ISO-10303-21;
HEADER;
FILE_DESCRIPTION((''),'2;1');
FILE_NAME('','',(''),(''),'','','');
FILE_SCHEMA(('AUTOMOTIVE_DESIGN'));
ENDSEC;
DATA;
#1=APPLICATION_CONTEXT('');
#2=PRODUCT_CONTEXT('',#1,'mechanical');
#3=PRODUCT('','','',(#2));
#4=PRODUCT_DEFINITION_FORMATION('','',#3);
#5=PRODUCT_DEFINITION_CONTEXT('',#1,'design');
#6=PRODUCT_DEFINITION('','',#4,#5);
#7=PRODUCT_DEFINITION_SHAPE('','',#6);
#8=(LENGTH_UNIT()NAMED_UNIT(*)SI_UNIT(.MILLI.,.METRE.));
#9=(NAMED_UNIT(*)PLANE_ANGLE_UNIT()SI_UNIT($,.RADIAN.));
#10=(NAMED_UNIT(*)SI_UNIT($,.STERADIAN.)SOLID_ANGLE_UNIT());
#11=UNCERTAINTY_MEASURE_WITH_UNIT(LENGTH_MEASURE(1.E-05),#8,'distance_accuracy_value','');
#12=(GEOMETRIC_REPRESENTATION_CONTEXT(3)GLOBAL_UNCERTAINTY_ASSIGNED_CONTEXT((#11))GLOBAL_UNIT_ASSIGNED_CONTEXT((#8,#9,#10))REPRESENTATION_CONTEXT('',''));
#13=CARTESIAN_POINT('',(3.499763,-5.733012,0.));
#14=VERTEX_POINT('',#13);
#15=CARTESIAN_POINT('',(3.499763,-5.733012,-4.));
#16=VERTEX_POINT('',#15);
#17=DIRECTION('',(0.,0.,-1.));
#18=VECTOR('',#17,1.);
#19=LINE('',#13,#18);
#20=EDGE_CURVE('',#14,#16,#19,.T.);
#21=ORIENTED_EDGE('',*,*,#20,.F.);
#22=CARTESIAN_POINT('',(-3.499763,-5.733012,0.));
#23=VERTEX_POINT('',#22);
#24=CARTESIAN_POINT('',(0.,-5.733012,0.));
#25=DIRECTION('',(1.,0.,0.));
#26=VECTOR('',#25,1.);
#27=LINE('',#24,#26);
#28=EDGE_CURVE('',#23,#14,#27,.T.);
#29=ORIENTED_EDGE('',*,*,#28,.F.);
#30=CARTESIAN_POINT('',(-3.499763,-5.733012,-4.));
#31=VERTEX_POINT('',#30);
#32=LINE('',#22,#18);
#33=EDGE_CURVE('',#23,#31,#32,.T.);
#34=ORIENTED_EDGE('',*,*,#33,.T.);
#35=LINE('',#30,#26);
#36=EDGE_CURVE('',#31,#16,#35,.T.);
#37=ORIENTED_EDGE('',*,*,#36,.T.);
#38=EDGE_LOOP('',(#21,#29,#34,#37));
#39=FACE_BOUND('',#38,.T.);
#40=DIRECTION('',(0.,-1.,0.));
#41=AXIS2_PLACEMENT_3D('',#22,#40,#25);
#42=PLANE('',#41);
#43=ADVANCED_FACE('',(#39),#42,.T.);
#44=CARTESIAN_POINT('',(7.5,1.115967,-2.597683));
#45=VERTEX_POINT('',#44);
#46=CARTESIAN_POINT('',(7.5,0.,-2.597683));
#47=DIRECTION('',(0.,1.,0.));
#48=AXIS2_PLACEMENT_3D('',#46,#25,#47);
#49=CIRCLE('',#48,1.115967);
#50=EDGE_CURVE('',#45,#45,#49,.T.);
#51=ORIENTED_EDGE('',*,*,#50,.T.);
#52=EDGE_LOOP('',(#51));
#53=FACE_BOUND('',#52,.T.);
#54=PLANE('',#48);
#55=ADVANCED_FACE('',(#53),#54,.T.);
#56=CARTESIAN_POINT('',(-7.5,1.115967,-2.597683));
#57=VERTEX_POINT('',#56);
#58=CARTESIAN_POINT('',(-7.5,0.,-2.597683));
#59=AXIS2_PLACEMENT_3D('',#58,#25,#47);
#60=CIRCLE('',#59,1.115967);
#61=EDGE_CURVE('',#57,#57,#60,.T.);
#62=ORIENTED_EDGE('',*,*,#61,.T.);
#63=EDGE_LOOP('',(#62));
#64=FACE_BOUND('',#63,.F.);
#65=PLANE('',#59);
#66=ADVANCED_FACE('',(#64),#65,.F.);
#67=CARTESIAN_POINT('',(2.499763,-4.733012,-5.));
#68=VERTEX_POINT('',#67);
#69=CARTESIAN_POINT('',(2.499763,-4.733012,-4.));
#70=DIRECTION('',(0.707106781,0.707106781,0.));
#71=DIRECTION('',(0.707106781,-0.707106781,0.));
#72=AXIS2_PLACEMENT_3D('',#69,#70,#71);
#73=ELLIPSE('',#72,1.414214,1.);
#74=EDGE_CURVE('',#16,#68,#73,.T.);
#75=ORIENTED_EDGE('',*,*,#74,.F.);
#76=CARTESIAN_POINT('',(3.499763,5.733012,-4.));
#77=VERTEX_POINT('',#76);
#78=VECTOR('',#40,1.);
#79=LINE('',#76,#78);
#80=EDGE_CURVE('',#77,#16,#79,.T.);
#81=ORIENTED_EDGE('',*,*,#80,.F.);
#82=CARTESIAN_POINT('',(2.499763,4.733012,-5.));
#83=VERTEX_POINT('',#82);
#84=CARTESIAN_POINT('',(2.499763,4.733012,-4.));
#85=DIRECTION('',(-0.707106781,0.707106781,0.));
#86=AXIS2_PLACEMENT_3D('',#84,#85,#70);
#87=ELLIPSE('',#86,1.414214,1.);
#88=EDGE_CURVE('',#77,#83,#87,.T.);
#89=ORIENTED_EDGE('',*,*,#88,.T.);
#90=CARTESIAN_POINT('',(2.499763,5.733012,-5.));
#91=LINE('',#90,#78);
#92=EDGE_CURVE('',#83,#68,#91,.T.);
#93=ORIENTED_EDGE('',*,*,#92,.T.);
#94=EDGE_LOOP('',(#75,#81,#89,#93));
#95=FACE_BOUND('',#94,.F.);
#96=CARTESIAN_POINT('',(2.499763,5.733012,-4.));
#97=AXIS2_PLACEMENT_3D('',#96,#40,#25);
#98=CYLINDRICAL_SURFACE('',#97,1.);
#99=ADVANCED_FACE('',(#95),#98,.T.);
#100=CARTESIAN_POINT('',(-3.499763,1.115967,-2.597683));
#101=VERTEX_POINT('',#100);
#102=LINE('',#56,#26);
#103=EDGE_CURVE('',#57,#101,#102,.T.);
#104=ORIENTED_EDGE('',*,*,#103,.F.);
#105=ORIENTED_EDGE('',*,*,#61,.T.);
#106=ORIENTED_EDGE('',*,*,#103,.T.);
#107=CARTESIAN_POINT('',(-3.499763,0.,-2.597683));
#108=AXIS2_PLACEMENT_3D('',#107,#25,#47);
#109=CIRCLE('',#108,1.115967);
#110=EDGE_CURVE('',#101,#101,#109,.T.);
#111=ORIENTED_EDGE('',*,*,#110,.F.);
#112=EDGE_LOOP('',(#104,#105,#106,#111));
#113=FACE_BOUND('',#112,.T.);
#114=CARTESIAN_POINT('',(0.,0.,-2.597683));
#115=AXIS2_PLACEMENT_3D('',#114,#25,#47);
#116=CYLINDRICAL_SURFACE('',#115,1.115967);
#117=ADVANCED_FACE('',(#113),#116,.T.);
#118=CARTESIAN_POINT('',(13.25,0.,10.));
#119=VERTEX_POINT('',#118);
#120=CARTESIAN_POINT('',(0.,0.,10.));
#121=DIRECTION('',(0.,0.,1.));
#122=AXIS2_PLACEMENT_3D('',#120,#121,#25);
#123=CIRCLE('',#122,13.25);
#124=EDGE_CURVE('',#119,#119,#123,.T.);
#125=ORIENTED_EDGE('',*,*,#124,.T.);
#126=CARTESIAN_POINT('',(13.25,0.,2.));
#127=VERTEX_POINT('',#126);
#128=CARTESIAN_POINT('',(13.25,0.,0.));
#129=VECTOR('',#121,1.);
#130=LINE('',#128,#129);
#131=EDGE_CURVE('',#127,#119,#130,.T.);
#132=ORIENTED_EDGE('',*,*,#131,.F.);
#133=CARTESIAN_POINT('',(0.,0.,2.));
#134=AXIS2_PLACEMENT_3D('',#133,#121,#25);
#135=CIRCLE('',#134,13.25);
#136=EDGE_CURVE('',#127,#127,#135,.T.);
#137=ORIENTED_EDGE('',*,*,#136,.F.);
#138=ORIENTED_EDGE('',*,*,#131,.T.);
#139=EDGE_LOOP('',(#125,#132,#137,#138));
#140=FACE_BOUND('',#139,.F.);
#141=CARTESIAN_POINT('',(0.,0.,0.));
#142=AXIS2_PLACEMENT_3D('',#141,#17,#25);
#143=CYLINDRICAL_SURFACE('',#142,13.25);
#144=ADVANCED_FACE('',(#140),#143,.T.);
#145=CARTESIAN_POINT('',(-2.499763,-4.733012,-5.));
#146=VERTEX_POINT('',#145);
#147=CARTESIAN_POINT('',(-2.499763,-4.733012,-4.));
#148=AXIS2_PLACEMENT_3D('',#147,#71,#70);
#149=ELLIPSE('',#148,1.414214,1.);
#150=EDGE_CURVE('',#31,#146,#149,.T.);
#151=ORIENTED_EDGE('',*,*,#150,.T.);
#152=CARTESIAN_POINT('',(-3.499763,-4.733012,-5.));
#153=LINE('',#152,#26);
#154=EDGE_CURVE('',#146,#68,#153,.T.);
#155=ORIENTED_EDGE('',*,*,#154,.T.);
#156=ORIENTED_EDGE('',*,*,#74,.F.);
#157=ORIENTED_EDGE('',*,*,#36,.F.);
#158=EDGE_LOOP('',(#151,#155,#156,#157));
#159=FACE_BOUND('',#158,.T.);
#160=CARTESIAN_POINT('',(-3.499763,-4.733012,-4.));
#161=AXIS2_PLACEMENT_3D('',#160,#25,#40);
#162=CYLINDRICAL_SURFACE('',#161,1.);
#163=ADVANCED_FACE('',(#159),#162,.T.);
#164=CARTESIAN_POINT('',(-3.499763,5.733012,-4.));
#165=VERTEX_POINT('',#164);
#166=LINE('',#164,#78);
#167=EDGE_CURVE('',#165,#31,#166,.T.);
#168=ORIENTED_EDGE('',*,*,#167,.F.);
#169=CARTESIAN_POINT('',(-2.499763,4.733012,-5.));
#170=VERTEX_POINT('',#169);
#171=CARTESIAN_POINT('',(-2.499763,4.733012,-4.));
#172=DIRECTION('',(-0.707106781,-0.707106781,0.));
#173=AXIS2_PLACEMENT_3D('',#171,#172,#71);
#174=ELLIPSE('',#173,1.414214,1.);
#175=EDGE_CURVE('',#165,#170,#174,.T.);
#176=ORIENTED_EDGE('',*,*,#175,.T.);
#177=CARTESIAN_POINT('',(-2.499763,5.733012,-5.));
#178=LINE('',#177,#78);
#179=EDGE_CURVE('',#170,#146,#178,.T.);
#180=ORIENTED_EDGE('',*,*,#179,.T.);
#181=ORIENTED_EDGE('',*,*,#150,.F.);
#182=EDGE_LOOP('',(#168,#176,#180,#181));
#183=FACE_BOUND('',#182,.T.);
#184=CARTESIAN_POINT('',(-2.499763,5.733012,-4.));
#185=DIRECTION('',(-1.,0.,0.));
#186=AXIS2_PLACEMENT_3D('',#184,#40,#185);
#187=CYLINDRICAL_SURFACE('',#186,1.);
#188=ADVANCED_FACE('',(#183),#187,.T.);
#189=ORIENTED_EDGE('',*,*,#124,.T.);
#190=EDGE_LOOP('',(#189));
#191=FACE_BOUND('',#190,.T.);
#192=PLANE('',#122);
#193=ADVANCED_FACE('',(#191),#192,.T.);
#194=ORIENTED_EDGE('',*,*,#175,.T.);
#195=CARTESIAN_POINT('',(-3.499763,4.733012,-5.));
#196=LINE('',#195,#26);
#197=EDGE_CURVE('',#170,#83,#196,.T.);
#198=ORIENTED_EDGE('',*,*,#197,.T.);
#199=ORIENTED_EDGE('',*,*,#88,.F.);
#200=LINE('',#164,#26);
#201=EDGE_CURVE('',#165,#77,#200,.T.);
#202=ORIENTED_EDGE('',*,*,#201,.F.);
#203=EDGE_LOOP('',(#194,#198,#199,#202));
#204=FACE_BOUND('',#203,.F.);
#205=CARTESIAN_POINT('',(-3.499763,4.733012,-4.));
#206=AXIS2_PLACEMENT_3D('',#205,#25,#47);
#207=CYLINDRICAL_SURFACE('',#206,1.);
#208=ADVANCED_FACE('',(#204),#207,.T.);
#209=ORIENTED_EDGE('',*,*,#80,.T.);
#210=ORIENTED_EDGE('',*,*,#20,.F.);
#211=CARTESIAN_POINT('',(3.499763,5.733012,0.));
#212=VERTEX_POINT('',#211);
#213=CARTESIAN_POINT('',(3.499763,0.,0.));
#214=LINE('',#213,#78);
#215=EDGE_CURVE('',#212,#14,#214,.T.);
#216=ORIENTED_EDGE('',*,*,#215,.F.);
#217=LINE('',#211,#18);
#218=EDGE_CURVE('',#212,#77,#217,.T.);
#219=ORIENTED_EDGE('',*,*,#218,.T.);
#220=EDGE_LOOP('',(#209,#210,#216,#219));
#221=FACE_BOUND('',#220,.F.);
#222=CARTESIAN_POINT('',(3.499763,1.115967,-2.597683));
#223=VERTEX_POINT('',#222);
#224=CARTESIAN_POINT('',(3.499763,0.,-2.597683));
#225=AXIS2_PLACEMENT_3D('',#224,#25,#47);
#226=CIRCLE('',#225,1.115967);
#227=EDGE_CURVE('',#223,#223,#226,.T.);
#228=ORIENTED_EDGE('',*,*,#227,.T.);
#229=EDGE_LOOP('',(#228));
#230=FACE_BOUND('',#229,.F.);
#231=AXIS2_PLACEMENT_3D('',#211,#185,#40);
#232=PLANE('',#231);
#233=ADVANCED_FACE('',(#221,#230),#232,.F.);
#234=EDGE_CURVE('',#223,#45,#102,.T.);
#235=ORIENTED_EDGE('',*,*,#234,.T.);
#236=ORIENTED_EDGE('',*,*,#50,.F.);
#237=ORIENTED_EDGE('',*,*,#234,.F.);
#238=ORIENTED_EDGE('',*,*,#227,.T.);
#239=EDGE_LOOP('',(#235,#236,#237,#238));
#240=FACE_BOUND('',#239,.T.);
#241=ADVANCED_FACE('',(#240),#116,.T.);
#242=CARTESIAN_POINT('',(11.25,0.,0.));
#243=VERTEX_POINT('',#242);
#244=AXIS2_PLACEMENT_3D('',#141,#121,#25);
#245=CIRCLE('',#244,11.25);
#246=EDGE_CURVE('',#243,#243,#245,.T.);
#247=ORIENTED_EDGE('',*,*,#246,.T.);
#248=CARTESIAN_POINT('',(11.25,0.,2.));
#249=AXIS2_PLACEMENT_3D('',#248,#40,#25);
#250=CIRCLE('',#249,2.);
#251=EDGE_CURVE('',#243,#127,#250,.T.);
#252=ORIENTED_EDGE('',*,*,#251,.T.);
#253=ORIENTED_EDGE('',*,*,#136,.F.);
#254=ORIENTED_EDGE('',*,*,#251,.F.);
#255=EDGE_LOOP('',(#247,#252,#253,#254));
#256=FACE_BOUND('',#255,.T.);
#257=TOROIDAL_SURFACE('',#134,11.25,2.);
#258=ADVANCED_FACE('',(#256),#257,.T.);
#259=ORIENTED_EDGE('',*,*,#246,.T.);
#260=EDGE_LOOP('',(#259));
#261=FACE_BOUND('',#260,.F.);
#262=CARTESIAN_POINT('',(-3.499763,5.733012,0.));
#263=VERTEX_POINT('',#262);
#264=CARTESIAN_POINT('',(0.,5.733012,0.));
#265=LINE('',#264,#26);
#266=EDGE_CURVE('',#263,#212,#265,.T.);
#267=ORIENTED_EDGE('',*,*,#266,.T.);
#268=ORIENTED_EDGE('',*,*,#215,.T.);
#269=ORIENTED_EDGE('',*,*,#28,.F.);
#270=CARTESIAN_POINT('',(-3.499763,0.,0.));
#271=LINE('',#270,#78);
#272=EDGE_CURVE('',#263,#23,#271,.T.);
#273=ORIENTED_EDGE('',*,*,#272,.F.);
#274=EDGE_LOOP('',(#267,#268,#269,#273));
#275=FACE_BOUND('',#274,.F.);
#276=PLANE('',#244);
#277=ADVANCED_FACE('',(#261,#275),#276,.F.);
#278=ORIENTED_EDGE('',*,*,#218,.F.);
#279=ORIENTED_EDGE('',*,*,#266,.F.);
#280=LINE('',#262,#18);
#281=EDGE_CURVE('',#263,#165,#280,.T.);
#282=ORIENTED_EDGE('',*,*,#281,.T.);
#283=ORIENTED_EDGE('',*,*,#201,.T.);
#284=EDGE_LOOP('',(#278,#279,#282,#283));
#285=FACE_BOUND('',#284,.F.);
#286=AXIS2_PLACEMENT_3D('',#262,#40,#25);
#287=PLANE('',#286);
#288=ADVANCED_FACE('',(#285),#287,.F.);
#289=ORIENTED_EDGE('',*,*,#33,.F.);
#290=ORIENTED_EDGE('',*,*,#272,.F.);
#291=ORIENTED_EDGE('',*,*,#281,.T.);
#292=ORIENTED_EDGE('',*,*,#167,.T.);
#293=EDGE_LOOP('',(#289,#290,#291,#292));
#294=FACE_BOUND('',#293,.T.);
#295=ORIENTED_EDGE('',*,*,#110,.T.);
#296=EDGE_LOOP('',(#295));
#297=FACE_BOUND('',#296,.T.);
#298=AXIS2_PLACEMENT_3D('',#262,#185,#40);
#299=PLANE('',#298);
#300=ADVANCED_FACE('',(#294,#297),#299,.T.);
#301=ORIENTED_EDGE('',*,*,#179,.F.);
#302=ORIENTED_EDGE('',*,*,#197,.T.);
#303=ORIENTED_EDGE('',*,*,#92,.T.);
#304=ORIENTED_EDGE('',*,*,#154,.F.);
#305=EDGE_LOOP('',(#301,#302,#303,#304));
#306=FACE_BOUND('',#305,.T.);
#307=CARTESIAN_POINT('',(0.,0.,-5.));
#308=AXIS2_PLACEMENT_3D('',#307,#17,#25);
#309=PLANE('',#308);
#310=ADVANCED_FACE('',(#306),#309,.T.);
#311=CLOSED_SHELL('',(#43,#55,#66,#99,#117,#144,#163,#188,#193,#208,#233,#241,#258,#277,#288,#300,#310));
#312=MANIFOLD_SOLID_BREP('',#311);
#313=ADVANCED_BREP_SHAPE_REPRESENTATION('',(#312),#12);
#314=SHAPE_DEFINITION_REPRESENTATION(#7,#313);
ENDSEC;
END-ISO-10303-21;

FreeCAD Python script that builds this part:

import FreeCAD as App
import Part
import Sketcher
from FreeCAD import Vector
Q = App.Units.Quantity


def edges_at(feature, points):
    """Names of the edges that pass closest to the given points."""
    edges = feature.Shape.Edges
    near = lambda p: min(range(len(edges)), key=lambda i: edges[i].distToShape(Part.Vertex(*p))[0])
    return sorted({f"Edge{near(p) + 1}" for p in points})

doc = App.newDocument("Part")
body = doc.addObject("PartDesign::Body", "Body")

sketch1 = body.newObject("Sketcher::SketchObject", "Sketch")
sketch1.AttachmentSupport = (doc.getObject("XY_Plane"), [""])
sketch1.MapMode = "FlatFace"
sketch1.addGeometry(Part.Circle(Vector(0, 0, 0), Vector(0, 0, 1), 13), False)
sketch1.addConstraint([
    Sketcher.Constraint("Coincident", 0, 3, -1, 1),
    Sketcher.Constraint("Diameter", 0, Q("26.5 mm")),
])
pad1 = body.newObject("PartDesign::Pad", "Pad")
pad1.Profile = sketch1
pad1.Length = 10

sketch2 = body.newObject("Sketcher::SketchObject", "Sketch001")
sketch2.AttachmentSupport = (doc.getObject("XY_Plane"), [""])
sketch2.MapMode = "FlatFace"
sketch2.addGeometry([
    Part.LineSegment(Vector(-3, -6, 0), Vector(-3, 6, 0)),
    Part.LineSegment(Vector(-3, 6, 0), Vector(3, 6, 0)),
    Part.LineSegment(Vector(3, 6, 0), Vector(3, -6, 0)),
    Part.LineSegment(Vector(3, -6, 0), Vector(-3, -6, 0)),
], False)
sketch2.addConstraint([
    Sketcher.Constraint("Coincident", 0, 2, 1, 1),
    Sketcher.Constraint("Coincident", 1, 2, 2, 1),
    Sketcher.Constraint("Coincident", 2, 2, 3, 1),
    Sketcher.Constraint("Coincident", 3, 2, 0, 1),
    Sketcher.Constraint("Vertical", 0),
    Sketcher.Constraint("Horizontal", 1),
    Sketcher.Constraint("Vertical", 2),
    Sketcher.Constraint("Horizontal", 3),
    Sketcher.Constraint("Symmetric", 0, 2, 2, 2, -1, 1),
    Sketcher.Constraint("DistanceX", 1, 1, 1, 2, Q("6.999525 mm")),
    Sketcher.Constraint("DistanceY", 0, 1, 0, 2, Q("11.466024 mm")),
])
pad2 = body.newObject("PartDesign::Pad", "Pad001")
pad2.Profile = sketch2
pad2.Length = 5
pad2.Reversed = True

sketch3 = body.newObject("Sketcher::SketchObject", "Sketch002")
sketch3.AttachmentSupport = (doc.getObject("YZ_Plane"), [""])
sketch3.MapMode = "FlatFace"
sketch3.addGeometry(Part.Circle(Vector(0, -2.6, 0), Vector(0, 0, 1), 1.1), False)
sketch3.addConstraint([
    Sketcher.Constraint("PointOnObject", 0, 3, -2),
    Sketcher.Constraint("Diameter", 0, Q("2.231934 mm")),
    Sketcher.Constraint("DistanceY", 0, 3, -1, 1, Q("2.597683 mm")),
])
pad3 = body.newObject("PartDesign::Pad", "Pad002")
pad3.Profile = sketch3
pad3.Length = 15
pad3.Midplane = True
doc.recompute()

fillet = body.newObject("PartDesign::Fillet", "Fillet")
fillet.Base = (pad3, edges_at(pad3, [(-13.25, 0, 0)]))
fillet.Radius = 2
doc.recompute()

fillet2 = body.newObject("PartDesign::Fillet", "Fillet001")
fillet2.Base = (fillet, edges_at(fillet, [
    (0, 5.733, -5),
    (3.5, 0, -5),
    (0, -5.733, -5),
    (-3.5, 0, -5),
]))
fillet2.Radius = 1

doc.recompute()
